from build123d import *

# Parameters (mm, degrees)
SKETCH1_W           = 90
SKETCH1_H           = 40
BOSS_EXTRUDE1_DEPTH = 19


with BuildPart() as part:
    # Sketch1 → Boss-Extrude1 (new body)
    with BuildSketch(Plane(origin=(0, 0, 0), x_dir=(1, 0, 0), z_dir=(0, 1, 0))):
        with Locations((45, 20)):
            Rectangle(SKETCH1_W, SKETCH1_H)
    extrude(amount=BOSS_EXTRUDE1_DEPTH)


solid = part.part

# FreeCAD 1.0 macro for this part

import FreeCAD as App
import Part
import Sketcher
from FreeCAD import Vector
Q = App.Units.Quantity


def add_polygon(sketch, points):
    """Adds a closed chain of lines whose ends are joined by coincident constraints."""
    first, n = sketch.GeometryCount, len(points)
    for a, b in zip(points, points[1:] + points[:1]):
        sketch.addGeometry(Part.LineSegment(App.Vector(*a, 0), App.Vector(*b, 0)), False)
    for i in range(n):
        sketch.addConstraint(Sketcher.Constraint("Coincident", first + i, 2, first + (i + 1) % n, 1))

doc = App.newDocument("Part")
body = doc.addObject("PartDesign::Body", "Body")

# Sketch on XZ plane
sketch1 = body.newObject("Sketcher::SketchObject", "Sketch")
sketch1.AttachmentSupport = (doc.getObject("XZ_Plane"), [""])
sketch1.MapMode = "FlatFace"
add_polygon(sketch1, [(0, -40), (0, 0), (90, 0), (90, -40)])  # lines 0-3
sketch1.addConstraint([
    Sketcher.Constraint("Vertical", 0),
    Sketcher.Constraint("Horizontal", 1),
    Sketcher.Constraint("Vertical", 2),
    Sketcher.Constraint("Horizontal", 3),
    Sketcher.Constraint("Coincident", 0, 2, -1, 1),
    Sketcher.Constraint("DistanceX", 1, 1, 1, 2, Q("90 mm")),
    Sketcher.Constraint("DistanceY", 0, 1, 0, 2, Q("40 mm")),
])
pad1 = body.newObject("PartDesign::Pad", "Pad")
pad1.Profile = sketch1
pad1.Length = 19
pad1.Reversed = True

doc.recompute()
